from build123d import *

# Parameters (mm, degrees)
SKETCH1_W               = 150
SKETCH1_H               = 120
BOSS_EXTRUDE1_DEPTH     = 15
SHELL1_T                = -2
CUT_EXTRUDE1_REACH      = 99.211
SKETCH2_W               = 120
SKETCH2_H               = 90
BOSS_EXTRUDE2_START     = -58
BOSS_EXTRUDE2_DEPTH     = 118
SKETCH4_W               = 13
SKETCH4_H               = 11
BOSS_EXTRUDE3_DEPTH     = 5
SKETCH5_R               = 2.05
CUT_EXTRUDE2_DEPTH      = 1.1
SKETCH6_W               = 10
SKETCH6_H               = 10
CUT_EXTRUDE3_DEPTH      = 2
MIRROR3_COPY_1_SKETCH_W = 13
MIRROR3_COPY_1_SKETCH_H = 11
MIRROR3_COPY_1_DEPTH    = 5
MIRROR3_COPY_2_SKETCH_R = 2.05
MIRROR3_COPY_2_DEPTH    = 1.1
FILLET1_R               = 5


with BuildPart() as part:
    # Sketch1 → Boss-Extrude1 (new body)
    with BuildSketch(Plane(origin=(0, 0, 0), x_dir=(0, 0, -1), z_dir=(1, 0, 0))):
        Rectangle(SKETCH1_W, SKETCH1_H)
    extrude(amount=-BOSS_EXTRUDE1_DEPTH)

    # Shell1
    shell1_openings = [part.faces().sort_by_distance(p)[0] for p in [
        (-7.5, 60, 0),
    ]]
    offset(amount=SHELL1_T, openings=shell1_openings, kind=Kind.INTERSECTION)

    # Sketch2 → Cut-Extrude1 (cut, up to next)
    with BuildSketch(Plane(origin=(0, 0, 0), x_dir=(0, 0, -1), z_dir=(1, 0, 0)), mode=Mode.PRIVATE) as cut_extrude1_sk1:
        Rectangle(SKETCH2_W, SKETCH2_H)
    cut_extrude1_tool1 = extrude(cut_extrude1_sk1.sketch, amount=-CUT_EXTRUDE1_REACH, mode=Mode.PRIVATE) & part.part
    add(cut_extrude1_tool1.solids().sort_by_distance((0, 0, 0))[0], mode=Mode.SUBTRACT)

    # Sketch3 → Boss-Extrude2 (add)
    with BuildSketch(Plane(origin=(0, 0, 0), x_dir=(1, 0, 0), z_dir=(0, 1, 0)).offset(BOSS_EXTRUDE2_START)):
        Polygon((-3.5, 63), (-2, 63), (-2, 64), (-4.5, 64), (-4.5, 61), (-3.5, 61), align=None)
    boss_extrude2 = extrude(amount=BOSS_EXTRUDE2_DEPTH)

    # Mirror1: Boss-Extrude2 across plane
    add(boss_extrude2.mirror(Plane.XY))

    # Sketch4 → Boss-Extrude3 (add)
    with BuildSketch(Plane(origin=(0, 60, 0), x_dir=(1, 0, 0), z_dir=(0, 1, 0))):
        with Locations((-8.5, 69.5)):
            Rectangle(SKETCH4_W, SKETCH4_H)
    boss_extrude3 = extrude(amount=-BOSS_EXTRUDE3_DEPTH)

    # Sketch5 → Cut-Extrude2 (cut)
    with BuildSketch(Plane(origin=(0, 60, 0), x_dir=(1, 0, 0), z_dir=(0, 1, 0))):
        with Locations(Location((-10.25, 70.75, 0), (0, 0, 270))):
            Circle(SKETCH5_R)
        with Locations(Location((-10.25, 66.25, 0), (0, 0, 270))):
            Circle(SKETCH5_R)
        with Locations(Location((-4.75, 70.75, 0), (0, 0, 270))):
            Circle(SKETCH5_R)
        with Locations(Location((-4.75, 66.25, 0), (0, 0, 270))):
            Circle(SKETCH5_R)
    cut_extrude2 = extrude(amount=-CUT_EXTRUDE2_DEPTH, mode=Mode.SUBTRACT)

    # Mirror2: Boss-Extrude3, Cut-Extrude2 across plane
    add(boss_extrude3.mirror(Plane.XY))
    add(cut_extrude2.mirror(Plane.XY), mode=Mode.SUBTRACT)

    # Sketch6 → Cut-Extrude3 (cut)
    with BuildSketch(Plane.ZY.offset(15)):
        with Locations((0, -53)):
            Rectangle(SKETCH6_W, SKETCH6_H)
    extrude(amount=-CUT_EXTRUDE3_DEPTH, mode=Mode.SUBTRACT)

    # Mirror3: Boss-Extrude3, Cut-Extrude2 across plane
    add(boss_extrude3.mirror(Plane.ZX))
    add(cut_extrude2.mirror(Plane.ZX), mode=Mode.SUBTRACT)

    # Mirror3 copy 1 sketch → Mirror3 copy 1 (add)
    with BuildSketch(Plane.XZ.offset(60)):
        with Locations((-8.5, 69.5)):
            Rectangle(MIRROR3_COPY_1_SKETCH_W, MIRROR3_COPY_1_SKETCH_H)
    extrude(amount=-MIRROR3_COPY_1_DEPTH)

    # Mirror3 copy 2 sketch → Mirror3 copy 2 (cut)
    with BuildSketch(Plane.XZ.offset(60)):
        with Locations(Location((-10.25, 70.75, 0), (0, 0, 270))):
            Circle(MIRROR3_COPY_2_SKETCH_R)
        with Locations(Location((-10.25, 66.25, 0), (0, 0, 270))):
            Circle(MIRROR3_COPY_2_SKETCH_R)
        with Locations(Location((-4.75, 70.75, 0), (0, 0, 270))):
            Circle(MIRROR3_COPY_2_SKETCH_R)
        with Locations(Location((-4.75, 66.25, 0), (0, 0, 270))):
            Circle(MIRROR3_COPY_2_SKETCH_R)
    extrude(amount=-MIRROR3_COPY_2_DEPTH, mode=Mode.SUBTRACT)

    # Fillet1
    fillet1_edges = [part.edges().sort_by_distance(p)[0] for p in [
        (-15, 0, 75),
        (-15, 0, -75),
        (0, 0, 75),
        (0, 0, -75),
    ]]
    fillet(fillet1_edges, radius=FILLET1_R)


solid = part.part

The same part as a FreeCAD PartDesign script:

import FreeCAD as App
import Part
import Sketcher

V = App.Vector


def edges_at(feature, points):
    """Names of the edges that pass closest to the given points."""
    edges = feature.Shape.Edges
    near = lambda p: min(range(len(edges)), key=lambda i: edges[i].distToShape(Part.Vertex(*p))[0])
    return sorted({f"Edge{near(p) + 1}" for p in points})


def faces_at(feature, points):
    """Names of the faces that lie closest to the given points."""
    faces = feature.Shape.Faces
    near = lambda p: min(range(len(faces)), key=lambda i: faces[i].distToShape(Part.Vertex(*p))[0])
    return sorted({f"Face{near(p) + 1}" for p in points})


def add_polygon(sketch, points):
    """Adds a closed chain of lines whose ends are joined by coincident constraints."""
    first, n = sketch.GeometryCount, len(points)
    for a, b in zip(points, points[1:] + points[:1]):
        sketch.addGeometry(Part.LineSegment(App.Vector(*a, 0), App.Vector(*b, 0)), False)
    for i in range(n):
        sketch.addConstraint(Sketcher.Constraint("Coincident", first + i, 2, first + (i + 1) % n, 1))

doc = App.newDocument("Part")
body = doc.addObject("PartDesign::Body", "Body")

# Sketch on YZ plane
sketch1 = body.newObject("Sketcher::SketchObject", "Sketch")
sketch1.AttachmentSupport = (doc.getObject("YZ_Plane"), [""])
sketch1.MapMode = "FlatFace"
add_polygon(sketch1, [(60, 75), (-60, 75), (-60, -75), (60, -75)])  # lines 0-3
sketch1.addConstraint([
    Sketcher.Constraint("Horizontal", 0),
    Sketcher.Constraint("Vertical", 1),
    Sketcher.Constraint("Horizontal", 2),
    Sketcher.Constraint("Vertical", 3),
    Sketcher.Constraint("Symmetric", 0, 2, 2, 2, -1, 1),
    Sketcher.Constraint("DistanceX", 0, 2, 0, 1, 120.0),
    Sketcher.Constraint("DistanceY", 1, 2, 1, 1, 150.0),
])
pad1 = body.newObject("PartDesign::Pad", "Pad")
pad1.Profile = sketch1
pad1.Length = 15
pad1.Reversed = True
doc.recompute()

thickness = body.newObject("PartDesign::Thickness", "Thickness")
thickness.Base = (pad1, faces_at(pad1, [(-7.5, 60, 0)]))
thickness.Value = 2
thickness.Reversed = True
thickness.Join = "Intersection"

# Sketch on YZ plane
sketch2 = body.newObject("Sketcher::SketchObject", "Sketch001")
sketch2.AttachmentSupport = (doc.getObject("YZ_Plane"), [""])
sketch2.MapMode = "FlatFace"
add_polygon(sketch2, [(45, 60), (-45, 60), (-45, -60), (45, -60)])  # lines 0-3
sketch2.addConstraint([
    Sketcher.Constraint("Horizontal", 0),
    Sketcher.Constraint("Vertical", 1),
    Sketcher.Constraint("Horizontal", 2),
    Sketcher.Constraint("Vertical", 3),
    Sketcher.Constraint("Symmetric", 0, 2, 2, 2, -1, 1),
    Sketcher.Constraint("DistanceX", 0, 2, 0, 1, 90.0),
    Sketcher.Constraint("DistanceY", 1, 2, 1, 1, 120.0),
])
pocket1 = body.newObject("PartDesign::Pocket", "Pocket")
pocket1.Profile = sketch2
pocket1.Type = "UpToFirst"

# Sketch on XZ plane
sketch3 = body.newObject("Sketcher::SketchObject", "Sketch002")
sketch3.AttachmentSupport = (doc.getObject("XZ_Plane"), [""])
sketch3.MapMode = "FlatFace"
sketch3.AttachmentOffset = App.Placement(V(0, 0, 58), App.Rotation())
add_polygon(sketch3, [(-3.5, -63), (-2, -63), (-2, -64), (-4.5, -64), (-4.5, -61), (-3.5, -61)])  # lines 0-5
sketch3.addConstraint([
    Sketcher.Constraint("Horizontal", 0),
    Sketcher.Constraint("Vertical", 1),
    Sketcher.Constraint("Horizontal", 2),
    Sketcher.Constraint("Vertical", 3),
    Sketcher.Constraint("Horizontal", 4),
    Sketcher.Constraint("Vertical", 5),
    Sketcher.Constraint("Equal", 4, 1),
    Sketcher.Constraint("DistanceX", 4, 1, 4, 2, 1.0),
    Sketcher.Constraint("DistanceY", 3, 1, 3, 2, 3.0),
    Sketcher.Constraint("DistanceX", 0, 1, 0, 2, 1.5),
    Sketcher.Constraint("DistanceX", 0, 2, -1, 1, 2.0),
    Sketcher.Constraint("DistanceY", 0, 2, -1, 1, 63.0),
])
pad2 = body.newObject("PartDesign::Pad", "Pad001")
pad2.Profile = sketch3
pad2.Length = 118
pad2.Reversed = True
doc.recompute()

mirrored = body.newObject("PartDesign::Mirrored", "Mirrored")
mirrored.Originals = [pad2]
mirrored.MirrorPlane = (doc.getObject("XY_Plane"), [""])
body.Tip = mirrored

# Sketch on XZ plane
sketch4 = body.newObject("Sketcher::SketchObject", "Sketch003")
sketch4.AttachmentSupport = (doc.getObject("XZ_Plane"), [""])
sketch4.MapMode = "FlatFace"
sketch4.AttachmentOffset = App.Placement(V(0, 0, -60), App.Rotation())
add_polygon(sketch4, [(-15, -75), (-15, -64), (-2, -64), (-2, -75)])  # lines 0-3
sketch4.addConstraint([
    Sketcher.Constraint("Vertical", 0),
    Sketcher.Constraint("Horizontal", 1),
    Sketcher.Constraint("Vertical", 2),
    Sketcher.Constraint("Horizontal", 3),
    Sketcher.Constraint("DistanceX", 1, 1, 1, 2, 13.0),
    Sketcher.Constraint("DistanceY", 0, 1, 0, 2, 11.0),
    Sketcher.Constraint("DistanceX", 0, 2, -1, 1, 15.0),
    Sketcher.Constraint("DistanceY", 0, 2, -1, 1, 64.0),
])
pad3 = body.newObject("PartDesign::Pad", "Pad002")
pad3.Profile = sketch4
pad3.Length = 5

# Sketch on XZ plane
sketch5 = body.newObject("Sketcher::SketchObject", "Sketch004")
sketch5.AttachmentSupport = (doc.getObject("XZ_Plane"), [""])
sketch5.MapMode = "FlatFace"
sketch5.AttachmentOffset = App.Placement(V(0, 0, -60), App.Rotation())
sketch5.addGeometry([
    Part.Circle(V(-10.25, -70.75, 0), V(0, 0, 1), 2.05),
    Part.Circle(V(-10.25, -66.25, 0), V(0, 0, 1), 2.05),
    Part.Circle(V(-4.75, -70.75, 0), V(0, 0, 1), 2.05),
    Part.Circle(V(-4.75, -66.25, 0), V(0, 0, 1), 2.05),
], False)
sketch5.addConstraint([
    Sketcher.Constraint("Equal", 0, 1),
    Sketcher.Constraint("Equal", 1, 2),
    Sketcher.Constraint("Equal", 2, 3),
    Sketcher.Constraint("Horizontal", 0, 3, 2, 3),
    Sketcher.Constraint("Horizontal", 1, 3, 3, 3),
    Sketcher.Constraint("Vertical", 0, 3, 1, 3),
    Sketcher.Constraint("Vertical", 2, 3, 3, 3),
    Sketcher.Constraint("Diameter", 0, 4.1),
    Sketcher.Constraint("DistanceY", 0, 3, 1, 3, 4.5),
    Sketcher.Constraint("DistanceX", 0, 3, 2, 3, 5.5),
    Sketcher.Constraint("DistanceX", 0, 3, -1, 1, 10.25),
    Sketcher.Constraint("DistanceY", 0, 3, -1, 1, 70.75),
])
pocket2 = body.newObject("PartDesign::Pocket", "Pocket001")
pocket2.Profile = sketch5
pocket2.Length = 1.1
pocket2.Reversed = True
doc.recompute()

mirrored2 = body.newObject("PartDesign::Mirrored", "Mirrored001")
mirrored2.Originals = [pad3, pocket2]
mirrored2.MirrorPlane = (doc.getObject("XY_Plane"), [""])
body.Tip = mirrored2

# Sketch on YZ plane
sketch6 = body.newObject("Sketcher::SketchObject", "Sketch005")
sketch6.AttachmentSupport = (doc.getObject("YZ_Plane"), [""])
sketch6.MapMode = "FlatFace"
sketch6.AttachmentOffset = App.Placement(V(0, 0, -15), App.Rotation())
add_polygon(sketch6, [(-48, -5), (-58, -5), (-58, 5), (-48, 5)])  # lines 0-3
sketch6.addConstraint([
    Sketcher.Constraint("Horizontal", 0),
    Sketcher.Constraint("Vertical", 1),
    Sketcher.Constraint("Horizontal", 2),
    Sketcher.Constraint("Vertical", 3),
    Sketcher.Constraint("Equal", 2, 1),
    Sketcher.Constraint("DistanceX", 0, 2, 0, 1, 10.0),
    Sketcher.Constraint("DistanceX", 0, 2, -1, 1, 58.0),
    Sketcher.Constraint("DistanceY", 0, 2, -1, 1, 5.0),
])
pocket3 = body.newObject("PartDesign::Pocket", "Pocket002")
pocket3.Profile = sketch6
pocket3.Length = 2
pocket3.Reversed = True
doc.recompute()

mirrored3 = body.newObject("PartDesign::Mirrored", "Mirrored002")
mirrored3.Originals = [pad3, pocket2]
mirrored3.MirrorPlane = (doc.getObject("XZ_Plane"), [""])
body.Tip = mirrored3

# Sketch on XZ plane
sketch7 = body.newObject("Sketcher::SketchObject", "Sketch006")
sketch7.AttachmentSupport = (doc.getObject("XZ_Plane"), [""])
sketch7.MapMode = "FlatFace"
sketch7.AttachmentOffset = App.Placement(V(0, 0, 60), App.Rotation())
add_polygon(sketch7, [(-15, 75), (-15, 64), (-2, 64), (-2, 75)])  # lines 0-3
sketch7.addConstraint([
    Sketcher.Constraint("Vertical", 0),
    Sketcher.Constraint("Horizontal", 1),
    Sketcher.Constraint("Vertical", 2),
    Sketcher.Constraint("Horizontal", 3),
    Sketcher.Constraint("DistanceX", 1, 1, 1, 2, 13.0),
    Sketcher.Constraint("DistanceY", 0, 2, 0, 1, 11.0),
    Sketcher.Constraint("DistanceX", 0, 2, -1, 1, 15.0),
    Sketcher.Constraint("DistanceY", -1, 1, 0, 2, 64.0),
])
pad4 = body.newObject("PartDesign::Pad", "Pad003")
pad4.Profile = sketch7
pad4.Length = 5
pad4.Reversed = True

# Sketch on XZ plane
sketch8 = body.newObject("Sketcher::SketchObject", "Sketch007")
sketch8.AttachmentSupport = (doc.getObject("XZ_Plane"), [""])
sketch8.MapMode = "FlatFace"
sketch8.AttachmentOffset = App.Placement(V(0, 0, 60), App.Rotation())
sketch8.addGeometry([
    Part.Circle(V(-10.25, 70.75, 0), V(0, 0, 1), 2.05),
    Part.Circle(V(-10.25, 66.25, 0), V(0, 0, 1), 2.05),
    Part.Circle(V(-4.75, 70.75, 0), V(0, 0, 1), 2.05),
    Part.Circle(V(-4.75, 66.25, 0), V(0, 0, 1), 2.05),
], False)
sketch8.addConstraint([
    Sketcher.Constraint("Equal", 0, 1),
    Sketcher.Constraint("Equal", 1, 2),
    Sketcher.Constraint("Equal", 2, 3),
    Sketcher.Constraint("Horizontal", 0, 3, 2, 3),
    Sketcher.Constraint("Horizontal", 1, 3, 3, 3),
    Sketcher.Constraint("Vertical", 0, 3, 1, 3),
    Sketcher.Constraint("Vertical", 2, 3, 3, 3),
    Sketcher.Constraint("Diameter", 0, 4.1),
    Sketcher.Constraint("DistanceY", 1, 3, 0, 3, 4.5),
    Sketcher.Constraint("DistanceX", 0, 3, 2, 3, 5.5),
    Sketcher.Constraint("DistanceX", 0, 3, -1, 1, 10.25),
    Sketcher.Constraint("DistanceY", -1, 1, 0, 3, 70.75),
])
pocket4 = body.newObject("PartDesign::Pocket", "Pocket003")
pocket4.Profile = sketch8
pocket4.Length = 1.1
doc.recompute()

fillet = body.newObject("PartDesign::Fillet", "Fillet")
fillet.Base = (pocket4, edges_at(pocket4, [
    (-15, 0, 75),
    (-15, 0, -75),
    (0, 0, 75),
    (0, 0, -75),
]))
fillet.Radius = 5

doc.recompute()
